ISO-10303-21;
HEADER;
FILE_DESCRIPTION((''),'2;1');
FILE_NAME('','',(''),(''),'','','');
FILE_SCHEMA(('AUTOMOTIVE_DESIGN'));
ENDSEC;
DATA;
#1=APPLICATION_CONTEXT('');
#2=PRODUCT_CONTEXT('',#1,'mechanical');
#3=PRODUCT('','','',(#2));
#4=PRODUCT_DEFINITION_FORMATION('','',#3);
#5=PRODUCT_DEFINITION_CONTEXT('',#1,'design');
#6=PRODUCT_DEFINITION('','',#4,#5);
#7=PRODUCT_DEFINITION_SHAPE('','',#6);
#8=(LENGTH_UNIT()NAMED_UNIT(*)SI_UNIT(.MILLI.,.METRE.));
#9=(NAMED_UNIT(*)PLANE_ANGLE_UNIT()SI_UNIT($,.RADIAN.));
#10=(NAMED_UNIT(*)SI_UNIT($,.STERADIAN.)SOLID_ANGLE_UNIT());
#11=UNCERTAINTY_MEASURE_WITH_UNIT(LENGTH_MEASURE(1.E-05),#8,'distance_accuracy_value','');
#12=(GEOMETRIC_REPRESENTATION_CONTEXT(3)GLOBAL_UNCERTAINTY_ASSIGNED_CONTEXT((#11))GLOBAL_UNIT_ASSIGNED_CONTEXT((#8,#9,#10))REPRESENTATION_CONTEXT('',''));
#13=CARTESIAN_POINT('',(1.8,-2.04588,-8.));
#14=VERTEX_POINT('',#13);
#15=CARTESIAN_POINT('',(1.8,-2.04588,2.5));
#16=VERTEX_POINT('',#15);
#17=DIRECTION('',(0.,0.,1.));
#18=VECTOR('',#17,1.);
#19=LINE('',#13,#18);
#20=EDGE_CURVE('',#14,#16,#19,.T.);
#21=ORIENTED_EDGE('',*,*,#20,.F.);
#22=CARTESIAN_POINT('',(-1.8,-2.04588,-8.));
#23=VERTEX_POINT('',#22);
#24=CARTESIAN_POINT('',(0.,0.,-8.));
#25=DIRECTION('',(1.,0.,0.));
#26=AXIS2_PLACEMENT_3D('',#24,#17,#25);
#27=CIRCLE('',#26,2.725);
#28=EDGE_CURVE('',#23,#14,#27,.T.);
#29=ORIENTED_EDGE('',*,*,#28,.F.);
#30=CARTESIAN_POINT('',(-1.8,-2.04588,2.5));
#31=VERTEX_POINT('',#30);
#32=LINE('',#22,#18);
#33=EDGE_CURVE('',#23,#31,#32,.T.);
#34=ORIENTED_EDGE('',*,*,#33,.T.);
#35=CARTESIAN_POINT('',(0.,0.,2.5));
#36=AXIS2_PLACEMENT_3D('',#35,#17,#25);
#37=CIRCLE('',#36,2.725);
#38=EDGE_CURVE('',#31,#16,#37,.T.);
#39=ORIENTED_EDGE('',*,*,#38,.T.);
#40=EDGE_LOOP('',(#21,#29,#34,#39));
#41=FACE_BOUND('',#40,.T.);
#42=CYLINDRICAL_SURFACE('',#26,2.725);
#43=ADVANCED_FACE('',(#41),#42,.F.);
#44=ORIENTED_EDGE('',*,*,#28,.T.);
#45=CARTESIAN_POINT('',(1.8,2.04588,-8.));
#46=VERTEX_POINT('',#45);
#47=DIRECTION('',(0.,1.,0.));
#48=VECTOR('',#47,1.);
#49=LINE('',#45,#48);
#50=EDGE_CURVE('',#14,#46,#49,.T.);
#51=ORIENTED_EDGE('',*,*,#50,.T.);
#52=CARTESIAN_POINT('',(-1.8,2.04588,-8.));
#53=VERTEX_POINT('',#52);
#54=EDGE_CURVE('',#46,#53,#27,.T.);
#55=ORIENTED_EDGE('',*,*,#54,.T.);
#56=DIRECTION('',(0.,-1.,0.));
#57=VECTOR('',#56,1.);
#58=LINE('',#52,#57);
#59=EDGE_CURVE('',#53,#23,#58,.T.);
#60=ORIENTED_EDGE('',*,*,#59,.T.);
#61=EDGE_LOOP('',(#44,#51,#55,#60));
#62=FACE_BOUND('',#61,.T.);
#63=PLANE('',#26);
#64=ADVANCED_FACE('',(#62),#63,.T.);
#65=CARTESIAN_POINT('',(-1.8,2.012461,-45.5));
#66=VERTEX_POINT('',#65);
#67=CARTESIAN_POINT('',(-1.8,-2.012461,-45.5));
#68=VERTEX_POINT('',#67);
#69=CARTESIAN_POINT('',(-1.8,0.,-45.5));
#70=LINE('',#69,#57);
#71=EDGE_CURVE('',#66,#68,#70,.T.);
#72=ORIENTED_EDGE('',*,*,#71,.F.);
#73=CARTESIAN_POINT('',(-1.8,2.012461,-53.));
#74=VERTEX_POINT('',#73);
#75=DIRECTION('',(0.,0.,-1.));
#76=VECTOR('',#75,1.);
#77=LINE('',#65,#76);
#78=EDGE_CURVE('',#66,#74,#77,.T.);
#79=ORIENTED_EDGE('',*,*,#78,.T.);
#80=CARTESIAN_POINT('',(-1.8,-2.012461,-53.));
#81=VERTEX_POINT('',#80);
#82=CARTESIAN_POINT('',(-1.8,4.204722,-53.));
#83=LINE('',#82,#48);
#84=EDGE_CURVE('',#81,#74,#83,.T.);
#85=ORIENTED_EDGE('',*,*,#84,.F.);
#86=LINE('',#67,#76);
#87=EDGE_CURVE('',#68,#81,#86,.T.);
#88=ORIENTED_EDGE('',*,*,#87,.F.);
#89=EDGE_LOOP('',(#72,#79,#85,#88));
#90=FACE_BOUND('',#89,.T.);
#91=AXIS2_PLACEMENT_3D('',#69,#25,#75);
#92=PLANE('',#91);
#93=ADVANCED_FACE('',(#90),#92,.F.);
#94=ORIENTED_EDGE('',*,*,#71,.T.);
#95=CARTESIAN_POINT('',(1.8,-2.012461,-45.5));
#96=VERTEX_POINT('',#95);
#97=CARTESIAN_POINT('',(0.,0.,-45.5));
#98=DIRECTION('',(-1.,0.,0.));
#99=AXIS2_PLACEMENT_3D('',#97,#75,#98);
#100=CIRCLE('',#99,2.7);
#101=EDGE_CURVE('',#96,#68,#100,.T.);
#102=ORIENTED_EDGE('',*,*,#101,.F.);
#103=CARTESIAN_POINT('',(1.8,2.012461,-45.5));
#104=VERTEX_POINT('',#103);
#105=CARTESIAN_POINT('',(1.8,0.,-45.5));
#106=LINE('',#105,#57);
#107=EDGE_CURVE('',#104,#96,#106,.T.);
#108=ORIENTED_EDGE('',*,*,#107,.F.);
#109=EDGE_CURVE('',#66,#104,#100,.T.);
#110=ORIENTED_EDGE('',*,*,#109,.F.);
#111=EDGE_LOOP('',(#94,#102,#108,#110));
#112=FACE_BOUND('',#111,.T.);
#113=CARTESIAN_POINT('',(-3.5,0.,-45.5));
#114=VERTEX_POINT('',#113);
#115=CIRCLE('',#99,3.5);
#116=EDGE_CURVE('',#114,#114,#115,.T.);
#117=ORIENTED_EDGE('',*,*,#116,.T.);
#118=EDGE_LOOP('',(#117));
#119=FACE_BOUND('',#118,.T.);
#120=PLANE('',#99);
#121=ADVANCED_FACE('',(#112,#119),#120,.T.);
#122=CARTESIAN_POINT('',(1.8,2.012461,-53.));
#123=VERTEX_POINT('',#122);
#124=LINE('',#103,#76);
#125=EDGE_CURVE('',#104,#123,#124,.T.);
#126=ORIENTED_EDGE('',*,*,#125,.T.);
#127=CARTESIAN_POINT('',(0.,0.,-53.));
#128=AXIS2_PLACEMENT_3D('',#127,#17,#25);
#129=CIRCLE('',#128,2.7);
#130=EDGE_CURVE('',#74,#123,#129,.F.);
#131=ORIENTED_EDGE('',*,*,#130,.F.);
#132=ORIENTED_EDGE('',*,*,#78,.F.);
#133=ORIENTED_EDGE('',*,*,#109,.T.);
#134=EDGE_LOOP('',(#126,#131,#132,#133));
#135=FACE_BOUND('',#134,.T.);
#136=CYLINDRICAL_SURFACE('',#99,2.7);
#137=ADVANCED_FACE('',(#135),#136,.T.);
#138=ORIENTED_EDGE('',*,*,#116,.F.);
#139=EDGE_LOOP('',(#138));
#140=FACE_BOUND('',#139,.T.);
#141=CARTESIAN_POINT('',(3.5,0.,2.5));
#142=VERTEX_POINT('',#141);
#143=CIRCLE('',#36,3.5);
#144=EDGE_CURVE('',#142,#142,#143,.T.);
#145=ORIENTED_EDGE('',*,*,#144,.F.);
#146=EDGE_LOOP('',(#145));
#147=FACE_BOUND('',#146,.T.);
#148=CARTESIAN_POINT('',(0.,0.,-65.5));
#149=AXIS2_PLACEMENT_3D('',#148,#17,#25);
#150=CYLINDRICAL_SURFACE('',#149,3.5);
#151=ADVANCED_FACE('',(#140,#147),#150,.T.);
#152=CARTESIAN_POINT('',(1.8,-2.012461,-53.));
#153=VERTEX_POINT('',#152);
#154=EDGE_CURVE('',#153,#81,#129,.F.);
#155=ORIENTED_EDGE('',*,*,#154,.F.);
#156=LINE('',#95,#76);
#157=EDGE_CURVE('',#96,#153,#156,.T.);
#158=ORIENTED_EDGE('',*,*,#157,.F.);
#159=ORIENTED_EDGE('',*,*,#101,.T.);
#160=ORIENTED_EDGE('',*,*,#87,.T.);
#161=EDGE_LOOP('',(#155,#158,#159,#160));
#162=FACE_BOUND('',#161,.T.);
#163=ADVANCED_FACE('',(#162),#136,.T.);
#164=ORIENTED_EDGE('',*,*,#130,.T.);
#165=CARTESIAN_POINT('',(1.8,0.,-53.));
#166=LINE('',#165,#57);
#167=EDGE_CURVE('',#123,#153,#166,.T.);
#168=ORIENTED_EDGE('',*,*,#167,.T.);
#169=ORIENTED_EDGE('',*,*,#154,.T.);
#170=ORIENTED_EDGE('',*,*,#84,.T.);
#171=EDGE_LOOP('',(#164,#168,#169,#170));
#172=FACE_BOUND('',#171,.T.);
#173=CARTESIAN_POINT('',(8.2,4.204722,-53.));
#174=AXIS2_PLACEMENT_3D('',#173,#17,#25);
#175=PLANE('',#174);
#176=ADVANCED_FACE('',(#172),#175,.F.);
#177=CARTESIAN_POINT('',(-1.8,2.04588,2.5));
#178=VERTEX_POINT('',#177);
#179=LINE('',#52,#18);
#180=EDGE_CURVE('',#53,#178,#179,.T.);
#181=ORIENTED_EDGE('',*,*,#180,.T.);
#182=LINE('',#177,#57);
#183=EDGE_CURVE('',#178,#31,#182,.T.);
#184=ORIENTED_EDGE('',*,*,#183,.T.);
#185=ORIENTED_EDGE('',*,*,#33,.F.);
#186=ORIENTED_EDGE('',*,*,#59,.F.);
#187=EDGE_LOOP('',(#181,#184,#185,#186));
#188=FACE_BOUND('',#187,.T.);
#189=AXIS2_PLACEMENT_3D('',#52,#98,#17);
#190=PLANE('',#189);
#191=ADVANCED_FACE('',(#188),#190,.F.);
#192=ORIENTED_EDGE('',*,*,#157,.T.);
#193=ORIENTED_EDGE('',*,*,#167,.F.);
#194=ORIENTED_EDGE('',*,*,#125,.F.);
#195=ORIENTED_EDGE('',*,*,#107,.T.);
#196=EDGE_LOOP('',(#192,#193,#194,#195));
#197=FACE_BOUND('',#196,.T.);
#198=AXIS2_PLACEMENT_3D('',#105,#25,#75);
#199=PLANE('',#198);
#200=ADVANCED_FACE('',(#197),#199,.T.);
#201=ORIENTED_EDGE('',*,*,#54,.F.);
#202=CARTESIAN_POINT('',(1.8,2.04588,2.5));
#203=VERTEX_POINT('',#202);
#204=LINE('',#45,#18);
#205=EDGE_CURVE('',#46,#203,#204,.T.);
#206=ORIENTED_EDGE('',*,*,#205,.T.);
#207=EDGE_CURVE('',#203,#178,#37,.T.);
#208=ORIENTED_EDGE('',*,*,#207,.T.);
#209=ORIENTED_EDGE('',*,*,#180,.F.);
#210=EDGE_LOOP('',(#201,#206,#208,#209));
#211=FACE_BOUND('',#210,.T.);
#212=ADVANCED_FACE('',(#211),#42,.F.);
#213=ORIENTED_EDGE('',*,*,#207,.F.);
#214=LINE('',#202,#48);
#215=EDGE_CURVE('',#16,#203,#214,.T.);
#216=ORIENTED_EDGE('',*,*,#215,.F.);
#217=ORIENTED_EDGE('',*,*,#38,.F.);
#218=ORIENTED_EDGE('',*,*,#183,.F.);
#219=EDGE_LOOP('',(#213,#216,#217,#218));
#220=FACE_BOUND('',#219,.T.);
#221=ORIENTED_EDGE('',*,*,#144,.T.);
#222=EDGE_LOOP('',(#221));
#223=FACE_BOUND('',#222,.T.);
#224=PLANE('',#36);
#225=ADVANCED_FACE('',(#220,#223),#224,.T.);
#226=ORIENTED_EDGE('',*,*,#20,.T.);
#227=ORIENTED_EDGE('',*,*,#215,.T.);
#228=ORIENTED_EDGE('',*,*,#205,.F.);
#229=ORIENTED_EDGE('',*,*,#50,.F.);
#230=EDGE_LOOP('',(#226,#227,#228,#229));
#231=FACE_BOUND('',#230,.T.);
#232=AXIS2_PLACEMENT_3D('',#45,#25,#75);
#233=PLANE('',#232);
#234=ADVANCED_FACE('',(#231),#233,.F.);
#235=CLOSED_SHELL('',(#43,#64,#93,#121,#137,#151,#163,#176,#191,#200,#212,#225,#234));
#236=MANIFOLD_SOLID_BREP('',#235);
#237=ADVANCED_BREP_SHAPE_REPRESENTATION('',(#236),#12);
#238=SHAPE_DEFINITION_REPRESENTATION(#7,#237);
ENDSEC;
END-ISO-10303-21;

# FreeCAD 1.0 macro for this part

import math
import FreeCAD as App
import Part
import Sketcher
Q = App.Units.Quantity


def add_polygon(sketch, points):
    """Adds a closed chain of lines whose ends are joined by coincident constraints."""
    first, n = sketch.GeometryCount, len(points)
    for a, b in zip(points, points[1:] + points[:1]):
        sketch.addGeometry(Part.LineSegment(App.Vector(*a, 0), App.Vector(*b, 0)), False)
    for i in range(n):
        sketch.addConstraint(Sketcher.Constraint("Coincident", first + i, 2, first + (i + 1) % n, 1))

doc = App.newDocument("Part")
body = doc.addObject("PartDesign::Body", "Body")

# Sketch on XY plane
sketch1 = doc.addObject("Sketcher::SketchObject", "Sketch")
body.addObject(sketch1)
sketch1.AttachmentSupport = (doc.XY_Plane, [""])
sketch1.MapMode = "FlatFace"
sketch1.addGeometry(Part.Circle(App.Vector(0, 0, 0), App.Vector(0, 0, 1), 3.5), False)
sketch1.addConstraint([
    Sketcher.Constraint("Coincident", 0, 3, -1, 1),
    Sketcher.Constraint("Diameter", 0, Q("7 mm")),
])
pad1 = doc.addObject("PartDesign::Pad", "Pad")
body.addObject(pad1)
pad1.Profile = sketch1
pad1.Length = 65.5
pad1.Reversed = True

# Sketch on XY plane
sketch2 = doc.addObject("Sketcher::SketchObject", "Sketch001")
body.addObject(sketch2)
sketch2.AttachmentSupport = (doc.XY_Plane, [""])
sketch2.MapMode = "FlatFace"
sketch2.addGeometry([
    Part.LineSegment(App.Vector(-1.8, 2, 0), App.Vector(-1.8, -2, 0)),
    Part.ArcOfCircle(Part.Circle(App.Vector(0, 0, 0), App.Vector(0, 0, 1), 2.7), math.radians(-131), math.radians(-49)),
    Part.LineSegment(App.Vector(1.8, -2, 0), App.Vector(1.8, 2, 0)),
    Part.ArcOfCircle(Part.Circle(App.Vector(0, 0, 0), App.Vector(0, 0, 1), 2.7), math.radians(49), math.radians(131)),
], False)
sketch2.addConstraint([
    Sketcher.Constraint("Coincident", 0, 2, 1, 1),
    Sketcher.Constraint("Coincident", 1, 2, 2, 1),
    Sketcher.Constraint("Coincident", 2, 2, 3, 1),
    Sketcher.Constraint("Coincident", 3, 2, 0, 1),
    Sketcher.Constraint("Vertical", 0),
    Sketcher.Constraint("Vertical", 2),
    Sketcher.Constraint("Coincident", 1, 3, -1, 1),
    Sketcher.Constraint("Coincident", 3, 3, -1, 1),
    Sketcher.Constraint("Equal", 1, 3),
    Sketcher.Constraint("Horizontal", 0, 2, 1, 2),
    Sketcher.Constraint("Radius", 1, Q("2.725 mm")),
    Sketcher.Constraint("DistanceX", 0, 2, -1, 1, Q("1.8 mm")),
])
pocket1 = doc.addObject("PartDesign::Pocket", "Pocket")
body.addObject(pocket1)
pocket1.Profile = sketch2
pocket1.Length = 8

# Sketch on XY plane
sketch3 = doc.addObject("Sketcher::SketchObject", "Sketch002")
body.addObject(sketch3)
sketch3.AttachmentSupport = (doc.XY_Plane, [""])
sketch3.MapMode = "FlatFace"
sketch3.AttachmentOffset = App.Placement(App.Vector(0, 0, -45.5), App.Rotation())
sketch3.addGeometry([
    Part.Circle(App.Vector(0, 0, 0), App.Vector(0, 0, 1), 3.5),  # 0
    Part.ArcOfCircle(Part.Circle(App.Vector(0, 0, 0), App.Vector(0, 0, 1), 2.7), math.radians(48), math.radians(132)),  # 1
    Part.LineSegment(App.Vector(-1.8, 2, 0), App.Vector(-1.8, -2, 0)),  # 2
    Part.ArcOfCircle(Part.Circle(App.Vector(0, 0, 0), App.Vector(0, 0, 1), 2.7), math.radians(-132), math.radians(-48)),  # 3
    Part.LineSegment(App.Vector(1.8, -2, 0), App.Vector(1.8, 2, 0)),  # 4
], False)
sketch3.addConstraint([
    Sketcher.Constraint("Coincident", 1, 2, 2, 1),
    Sketcher.Constraint("Coincident", 2, 2, 3, 1),
    Sketcher.Constraint("Coincident", 3, 2, 4, 1),
    Sketcher.Constraint("Coincident", 4, 2, 1, 1),
    Sketcher.Constraint("Vertical", 2),
    Sketcher.Constraint("Vertical", 4),
    Sketcher.Constraint("Coincident", 0, 3, -1, 1),
    Sketcher.Constraint("Coincident", 1, 3, -1, 1),
    Sketcher.Constraint("Coincident", 3, 3, -1, 1),
    Sketcher.Constraint("Equal", 1, 3),
    Sketcher.Constraint("Horizontal", 2, 2, 3, 2),
    Sketcher.Constraint("Diameter", 0, Q("7 mm")),
    Sketcher.Constraint("Radius", 1, Q("2.7 mm")),
    Sketcher.Constraint("DistanceX", 1, 2, -1, 1, Q("1.8 mm")),
])
pocket2 = doc.addObject("PartDesign::Pocket", "Pocket001")
body.addObject(pocket2)
pocket2.Profile = sketch3
pocket2.Length = 20

# Sketch on YZ plane
sketch4 = doc.addObject("Sketcher::SketchObject", "Sketch003")
body.addObject(sketch4)
sketch4.AttachmentSupport = (doc.YZ_Plane, [""])
sketch4.MapMode = "FlatFace"
sketch4.AttachmentOffset = App.Placement(App.Vector(0, 0, -1.8), App.Rotation())
add_polygon(sketch4, [(4, -66), (-5, -66), (-5, -53), (4, -53)])  # lines 0-3
sketch4.addConstraint([
    Sketcher.Constraint("Horizontal", 0),
    Sketcher.Constraint("Vertical", 1),
    Sketcher.Constraint("Horizontal", 2),
    Sketcher.Constraint("Vertical", 3),
    Sketcher.Constraint("DistanceY", 1, 2, -1, 1, Q("53 mm")),
    Sketcher.Constraint("DistanceX", 0, 2, 0, 1, Q("9.282886 mm")),
    Sketcher.Constraint("DistanceY", 1, 1, 1, 2, Q("12.617226 mm")),
    Sketcher.Constraint("DistanceX", -1, 1, 2, 2, Q("4.204722 mm")),
])
pocket3 = doc.addObject("PartDesign::Pocket", "Pocket002")
body.addObject(pocket3)
pocket3.Profile = sketch4
pocket3.Length = 10
pocket3.Reversed = True

# Sketch on XY plane
sketch5 = doc.addObject("Sketcher::SketchObject", "Sketch004")
body.addObject(sketch5)
sketch5.AttachmentSupport = (doc.XY_Plane, [""])
sketch5.MapMode = "FlatFace"
sketch5.AttachmentOffset = App.Placement(App.Vector(0, 0, 2.5), App.Rotation())
sketch5.addGeometry([
    Part.Circle(App.Vector(0, 0, 0), App.Vector(0, 0, 1), 3.5),  # 0
    Part.LineSegment(App.Vector(-1.8, -2, 0), App.Vector(-1.8, 2, 0)),  # 1
    Part.ArcOfCircle(Part.Circle(App.Vector(0, 0, 0), App.Vector(0, 0, 1), 2.7), math.radians(49), math.radians(131)),  # 2
    Part.LineSegment(App.Vector(1.8, 2, 0), App.Vector(1.8, -2, 0)),  # 3
    Part.ArcOfCircle(Part.Circle(App.Vector(0, 0, 0), App.Vector(0, 0, 1), 2.7), math.radians(-131), math.radians(-49)),  # 4
], False)
sketch5.addConstraint([
    Sketcher.Constraint("Coincident", 1, 2, 2, 2),
    Sketcher.Constraint("Coincident", 2, 1, 3, 1),
    Sketcher.Constraint("Coincident", 3, 2, 4, 2),
    Sketcher.Constraint("Coincident", 4, 1, 1, 1),
    Sketcher.Constraint("Vertical", 1),
    Sketcher.Constraint("Vertical", 3),
    Sketcher.Constraint("Coincident", 0, 3, -1, 1),
    Sketcher.Constraint("Coincident", 2, 3, -1, 1),
    Sketcher.Constraint("Coincident", 4, 3, -1, 1),
    Sketcher.Constraint("Equal", 2, 4),
    Sketcher.Constraint("Horizontal", 1, 2, 2, 1),
    Sketcher.Constraint("Diameter", 0, Q("7 mm")),
    Sketcher.Constraint("Radius", 2, Q("2.725 mm")),
    Sketcher.Constraint("DistanceX", 1, 2, -1, 1, Q("1.8 mm")),
])
pad2 = doc.addObject("PartDesign::Pad", "Pad001")
body.addObject(pad2)
pad2.Profile = sketch5
pad2.Length = 2.5
pad2.Reversed = True

doc.recompute()
